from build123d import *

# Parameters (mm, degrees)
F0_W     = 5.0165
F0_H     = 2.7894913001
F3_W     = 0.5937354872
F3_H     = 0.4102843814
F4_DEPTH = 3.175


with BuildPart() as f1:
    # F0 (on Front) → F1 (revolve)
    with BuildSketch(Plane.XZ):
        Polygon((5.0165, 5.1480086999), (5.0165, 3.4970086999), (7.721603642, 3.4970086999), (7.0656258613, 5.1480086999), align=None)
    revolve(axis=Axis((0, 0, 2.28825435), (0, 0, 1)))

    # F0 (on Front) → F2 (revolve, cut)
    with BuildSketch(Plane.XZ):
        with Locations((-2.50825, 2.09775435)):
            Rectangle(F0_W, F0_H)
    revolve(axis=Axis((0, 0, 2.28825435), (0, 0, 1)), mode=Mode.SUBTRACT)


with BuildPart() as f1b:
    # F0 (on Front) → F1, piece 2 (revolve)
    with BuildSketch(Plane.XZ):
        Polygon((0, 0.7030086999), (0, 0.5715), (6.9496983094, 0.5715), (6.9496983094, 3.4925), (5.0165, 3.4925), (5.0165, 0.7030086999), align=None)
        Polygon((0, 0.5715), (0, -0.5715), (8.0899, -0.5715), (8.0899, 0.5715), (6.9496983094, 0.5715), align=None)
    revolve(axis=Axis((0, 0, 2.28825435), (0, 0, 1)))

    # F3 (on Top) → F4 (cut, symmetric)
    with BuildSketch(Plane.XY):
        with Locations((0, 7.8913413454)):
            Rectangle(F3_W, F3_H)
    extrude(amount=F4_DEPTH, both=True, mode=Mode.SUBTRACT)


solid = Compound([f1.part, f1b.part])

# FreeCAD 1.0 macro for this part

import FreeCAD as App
import Part
import Sketcher
from FreeCAD import Vector
Q = App.Units.Quantity

doc = App.newDocument("Part")
body = doc.addObject("PartDesign::Body", "Body")

sketch1 = body.newObject("Sketcher::SketchObject", "Sketch")
sketch1.AttachmentSupport = (doc.getObject("XZ_Plane"), [""])
sketch1.MapMode = "FlatFace"
sketch1.addGeometry([
    Part.LineSegment(Vector(5, 5.1, 0), Vector(5, 3.5, 0)),
    Part.LineSegment(Vector(5, 3.5, 0), Vector(7.7, 3.5, 0)),
    Part.LineSegment(Vector(7.7, 3.5, 0), Vector(7.1, 5.1, 0)),
    Part.LineSegment(Vector(7.1, 5.1, 0), Vector(5, 5.1, 0)),
], False)
sketch1.addConstraint([
    Sketcher.Constraint("Coincident", 0, 2, 1, 1),
    Sketcher.Constraint("Coincident", 1, 2, 2, 1),
    Sketcher.Constraint("Coincident", 2, 2, 3, 1),
    Sketcher.Constraint("Coincident", 3, 2, 0, 1),
    Sketcher.Constraint("Vertical", 0),
    Sketcher.Constraint("Horizontal", 1),
    Sketcher.Constraint("Horizontal", 3),
    Sketcher.Constraint("DistanceY", 0, 2, 0, 1, Q("0.065 in")),
    Sketcher.Constraint("DistanceX", 1, 1, 1, 2, Q("0.1065001 in")),
    Sketcher.Constraint("DistanceX", -1, 1, 1, 2, Q("0.3040001 in")),
    Sketcher.Constraint("DistanceX", 3, 2, 3, 1, Q("2.049126 mm")),
    Sketcher.Constraint("DistanceY", -1, 1, 0, 2, Q("3.497009 mm")),
])
revolution = body.newObject("PartDesign::Revolution", "Revolution")
revolution.Profile = sketch1
revolution.ReferenceAxis = (sketch1, ["V_Axis"])
revolution.Angle = 360

sketch2 = body.newObject("Sketcher::SketchObject", "Sketch001")
sketch2.AttachmentSupport = (doc.getObject("XZ_Plane"), [""])
sketch2.MapMode = "FlatFace"
sketch2.addGeometry([
    Part.LineSegment(Vector(-5, 3.5, 0), Vector(-5, 0.7, 0)),
    Part.LineSegment(Vector(-5, 0.7, 0), Vector(0, 0.7, 0)),
    Part.LineSegment(Vector(0, 0.7, 0), Vector(0, 3.5, 0)),
    Part.LineSegment(Vector(0, 3.5, 0), Vector(-5, 3.5, 0)),
], False)
sketch2.addConstraint([
    Sketcher.Constraint("Coincident", 0, 2, 1, 1),
    Sketcher.Constraint("Coincident", 1, 2, 2, 1),
    Sketcher.Constraint("Coincident", 2, 2, 3, 1),
    Sketcher.Constraint("Coincident", 3, 2, 0, 1),
    Sketcher.Constraint("Vertical", 0),
    Sketcher.Constraint("Horizontal", 1),
    Sketcher.Constraint("Vertical", 2),
    Sketcher.Constraint("Horizontal", 3),
    Sketcher.Constraint("PointOnObject", 1, 2, -2),
    Sketcher.Constraint("DistanceX", 1, 1, 1, 2, Q("0.1975 in")),
    Sketcher.Constraint("DistanceY", -1, 1, 2, 2, Q("0.1375 in")),
    Sketcher.Constraint("DistanceY", 0, 2, 0, 1, Q("2.789491 mm")),
])
groove = body.newObject("PartDesign::Groove", "Groove")
groove.Profile = sketch2
groove.ReferenceAxis = (sketch2, ["V_Axis"])
groove.Angle = 360
body2 = doc.addObject("PartDesign::Body", "Body001")

sketch3 = body2.newObject("Sketcher::SketchObject", "Sketch002")
sketch3.AttachmentSupport = (doc.getObject("XZ_Plane001"), [""])
sketch3.MapMode = "FlatFace"
sketch3.addGeometry([
    Part.LineSegment(Vector(0, 0.7, 0), Vector(0, -0.6, 0)),
    Part.LineSegment(Vector(0, -0.6, 0), Vector(8.1, -0.6, 0)),
    Part.LineSegment(Vector(8.1, -0.6, 0), Vector(8.1, 0.6, 0)),
    Part.LineSegment(Vector(8.1, 0.6, 0), Vector(6.9, 0.6, 0)),
    Part.LineSegment(Vector(6.9, 0.6, 0), Vector(6.9, 3.5, 0)),
    Part.LineSegment(Vector(6.9, 3.5, 0), Vector(5, 3.5, 0)),
    Part.LineSegment(Vector(5, 3.5, 0), Vector(5, 0.7, 0)),
    Part.LineSegment(Vector(5, 0.7, 0), Vector(0, 0.7, 0)),
], False)
sketch3.addConstraint([
    Sketcher.Constraint("Coincident", 0, 2, 1, 1),
    Sketcher.Constraint("Coincident", 1, 2, 2, 1),
    Sketcher.Constraint("Coincident", 2, 2, 3, 1),
    Sketcher.Constraint("Coincident", 3, 2, 4, 1),
    Sketcher.Constraint("Coincident", 4, 2, 5, 1),
    Sketcher.Constraint("Coincident", 5, 2, 6, 1),
    Sketcher.Constraint("Coincident", 6, 2, 7, 1),
    Sketcher.Constraint("Coincident", 7, 2, 0, 1),
    Sketcher.Constraint("Vertical", 0),
    Sketcher.Constraint("Horizontal", 1),
    Sketcher.Constraint("Vertical", 2),
    Sketcher.Constraint("Horizontal", 3),
    Sketcher.Constraint("Vertical", 4),
    Sketcher.Constraint("Horizontal", 5),
    Sketcher.Constraint("Vertical", 6),
    Sketcher.Constraint("Horizontal", 7),
    Sketcher.Constraint("PointOnObject", 0, 2, -2),
    Sketcher.Constraint("DistanceY", 2, 1, 2, 2, Q("0.045 in")),
    Sketcher.Constraint("DistanceY", 4, 1, 4, 2, Q("0.115 in")),
    Sketcher.Constraint("DistanceX", 1, 1, 1, 2, Q("0.3185 in")),
    Sketcher.Constraint("DistanceX", 7, 2, 7, 1, Q("0.1975 in")),
    Sketcher.Constraint("DistanceX", 3, 2, 3, 1, Q("1.140202 mm")),
    Sketcher.Constraint("DistanceY", 0, 2, -1, 1, Q("0.0225 in")),
    Sketcher.Constraint("DistanceY", 0, 2, 0, 1, Q("1.274509 mm")),
])
revolution2 = body2.newObject("PartDesign::Revolution", "Revolution001")
revolution2.Profile = sketch3
revolution2.ReferenceAxis = (sketch3, ["V_Axis"])
revolution2.Angle = 360

sketch4 = body2.newObject("Sketcher::SketchObject", "Sketch003")
sketch4.AttachmentSupport = (doc.getObject("XY_Plane001"), [""])
sketch4.MapMode = "FlatFace"
sketch4.addGeometry([
    Part.LineSegment(Vector(-0.3, 8.1, 0), Vector(-0.3, 7.69, 0)),
    Part.LineSegment(Vector(-0.3, 7.69, 0), Vector(0.3, 7.69, 0)),
    Part.LineSegment(Vector(0.3, 7.69, 0), Vector(0.3, 8.1, 0)),
    Part.LineSegment(Vector(0.3, 8.1, 0), Vector(-0.3, 8.1, 0)),
], False)
sketch4.addConstraint([
    Sketcher.Constraint("Coincident", 0, 2, 1, 1),
    Sketcher.Constraint("Coincident", 1, 2, 2, 1),
    Sketcher.Constraint("Coincident", 2, 2, 3, 1),
    Sketcher.Constraint("Coincident", 3, 2, 0, 1),
    Sketcher.Constraint("Vertical", 0),
    Sketcher.Constraint("Horizontal", 1),
    Sketcher.Constraint("Vertical", 2),
    Sketcher.Constraint("Horizontal", 3),
    Sketcher.Constraint("DistanceY", -1, 1, 0, 2, Q("7.686199 mm")),
    Sketcher.Constraint("DistanceX", 1, 1, 1, 2, Q("0.593735 mm")),
    Sketcher.Constraint("DistanceY", 0, 2, 0, 1, Q("0.410284 mm")),
    Sketcher.Constraint("DistanceX", 0, 2, -1, 1, Q("0.296868 mm")),
])
pocket1 = body2.newObject("PartDesign::Pocket", "Pocket")
pocket1.Profile = sketch4
pocket1.Length = Q("0.25 in")
pocket1.Midplane = True

doc.recompute()
